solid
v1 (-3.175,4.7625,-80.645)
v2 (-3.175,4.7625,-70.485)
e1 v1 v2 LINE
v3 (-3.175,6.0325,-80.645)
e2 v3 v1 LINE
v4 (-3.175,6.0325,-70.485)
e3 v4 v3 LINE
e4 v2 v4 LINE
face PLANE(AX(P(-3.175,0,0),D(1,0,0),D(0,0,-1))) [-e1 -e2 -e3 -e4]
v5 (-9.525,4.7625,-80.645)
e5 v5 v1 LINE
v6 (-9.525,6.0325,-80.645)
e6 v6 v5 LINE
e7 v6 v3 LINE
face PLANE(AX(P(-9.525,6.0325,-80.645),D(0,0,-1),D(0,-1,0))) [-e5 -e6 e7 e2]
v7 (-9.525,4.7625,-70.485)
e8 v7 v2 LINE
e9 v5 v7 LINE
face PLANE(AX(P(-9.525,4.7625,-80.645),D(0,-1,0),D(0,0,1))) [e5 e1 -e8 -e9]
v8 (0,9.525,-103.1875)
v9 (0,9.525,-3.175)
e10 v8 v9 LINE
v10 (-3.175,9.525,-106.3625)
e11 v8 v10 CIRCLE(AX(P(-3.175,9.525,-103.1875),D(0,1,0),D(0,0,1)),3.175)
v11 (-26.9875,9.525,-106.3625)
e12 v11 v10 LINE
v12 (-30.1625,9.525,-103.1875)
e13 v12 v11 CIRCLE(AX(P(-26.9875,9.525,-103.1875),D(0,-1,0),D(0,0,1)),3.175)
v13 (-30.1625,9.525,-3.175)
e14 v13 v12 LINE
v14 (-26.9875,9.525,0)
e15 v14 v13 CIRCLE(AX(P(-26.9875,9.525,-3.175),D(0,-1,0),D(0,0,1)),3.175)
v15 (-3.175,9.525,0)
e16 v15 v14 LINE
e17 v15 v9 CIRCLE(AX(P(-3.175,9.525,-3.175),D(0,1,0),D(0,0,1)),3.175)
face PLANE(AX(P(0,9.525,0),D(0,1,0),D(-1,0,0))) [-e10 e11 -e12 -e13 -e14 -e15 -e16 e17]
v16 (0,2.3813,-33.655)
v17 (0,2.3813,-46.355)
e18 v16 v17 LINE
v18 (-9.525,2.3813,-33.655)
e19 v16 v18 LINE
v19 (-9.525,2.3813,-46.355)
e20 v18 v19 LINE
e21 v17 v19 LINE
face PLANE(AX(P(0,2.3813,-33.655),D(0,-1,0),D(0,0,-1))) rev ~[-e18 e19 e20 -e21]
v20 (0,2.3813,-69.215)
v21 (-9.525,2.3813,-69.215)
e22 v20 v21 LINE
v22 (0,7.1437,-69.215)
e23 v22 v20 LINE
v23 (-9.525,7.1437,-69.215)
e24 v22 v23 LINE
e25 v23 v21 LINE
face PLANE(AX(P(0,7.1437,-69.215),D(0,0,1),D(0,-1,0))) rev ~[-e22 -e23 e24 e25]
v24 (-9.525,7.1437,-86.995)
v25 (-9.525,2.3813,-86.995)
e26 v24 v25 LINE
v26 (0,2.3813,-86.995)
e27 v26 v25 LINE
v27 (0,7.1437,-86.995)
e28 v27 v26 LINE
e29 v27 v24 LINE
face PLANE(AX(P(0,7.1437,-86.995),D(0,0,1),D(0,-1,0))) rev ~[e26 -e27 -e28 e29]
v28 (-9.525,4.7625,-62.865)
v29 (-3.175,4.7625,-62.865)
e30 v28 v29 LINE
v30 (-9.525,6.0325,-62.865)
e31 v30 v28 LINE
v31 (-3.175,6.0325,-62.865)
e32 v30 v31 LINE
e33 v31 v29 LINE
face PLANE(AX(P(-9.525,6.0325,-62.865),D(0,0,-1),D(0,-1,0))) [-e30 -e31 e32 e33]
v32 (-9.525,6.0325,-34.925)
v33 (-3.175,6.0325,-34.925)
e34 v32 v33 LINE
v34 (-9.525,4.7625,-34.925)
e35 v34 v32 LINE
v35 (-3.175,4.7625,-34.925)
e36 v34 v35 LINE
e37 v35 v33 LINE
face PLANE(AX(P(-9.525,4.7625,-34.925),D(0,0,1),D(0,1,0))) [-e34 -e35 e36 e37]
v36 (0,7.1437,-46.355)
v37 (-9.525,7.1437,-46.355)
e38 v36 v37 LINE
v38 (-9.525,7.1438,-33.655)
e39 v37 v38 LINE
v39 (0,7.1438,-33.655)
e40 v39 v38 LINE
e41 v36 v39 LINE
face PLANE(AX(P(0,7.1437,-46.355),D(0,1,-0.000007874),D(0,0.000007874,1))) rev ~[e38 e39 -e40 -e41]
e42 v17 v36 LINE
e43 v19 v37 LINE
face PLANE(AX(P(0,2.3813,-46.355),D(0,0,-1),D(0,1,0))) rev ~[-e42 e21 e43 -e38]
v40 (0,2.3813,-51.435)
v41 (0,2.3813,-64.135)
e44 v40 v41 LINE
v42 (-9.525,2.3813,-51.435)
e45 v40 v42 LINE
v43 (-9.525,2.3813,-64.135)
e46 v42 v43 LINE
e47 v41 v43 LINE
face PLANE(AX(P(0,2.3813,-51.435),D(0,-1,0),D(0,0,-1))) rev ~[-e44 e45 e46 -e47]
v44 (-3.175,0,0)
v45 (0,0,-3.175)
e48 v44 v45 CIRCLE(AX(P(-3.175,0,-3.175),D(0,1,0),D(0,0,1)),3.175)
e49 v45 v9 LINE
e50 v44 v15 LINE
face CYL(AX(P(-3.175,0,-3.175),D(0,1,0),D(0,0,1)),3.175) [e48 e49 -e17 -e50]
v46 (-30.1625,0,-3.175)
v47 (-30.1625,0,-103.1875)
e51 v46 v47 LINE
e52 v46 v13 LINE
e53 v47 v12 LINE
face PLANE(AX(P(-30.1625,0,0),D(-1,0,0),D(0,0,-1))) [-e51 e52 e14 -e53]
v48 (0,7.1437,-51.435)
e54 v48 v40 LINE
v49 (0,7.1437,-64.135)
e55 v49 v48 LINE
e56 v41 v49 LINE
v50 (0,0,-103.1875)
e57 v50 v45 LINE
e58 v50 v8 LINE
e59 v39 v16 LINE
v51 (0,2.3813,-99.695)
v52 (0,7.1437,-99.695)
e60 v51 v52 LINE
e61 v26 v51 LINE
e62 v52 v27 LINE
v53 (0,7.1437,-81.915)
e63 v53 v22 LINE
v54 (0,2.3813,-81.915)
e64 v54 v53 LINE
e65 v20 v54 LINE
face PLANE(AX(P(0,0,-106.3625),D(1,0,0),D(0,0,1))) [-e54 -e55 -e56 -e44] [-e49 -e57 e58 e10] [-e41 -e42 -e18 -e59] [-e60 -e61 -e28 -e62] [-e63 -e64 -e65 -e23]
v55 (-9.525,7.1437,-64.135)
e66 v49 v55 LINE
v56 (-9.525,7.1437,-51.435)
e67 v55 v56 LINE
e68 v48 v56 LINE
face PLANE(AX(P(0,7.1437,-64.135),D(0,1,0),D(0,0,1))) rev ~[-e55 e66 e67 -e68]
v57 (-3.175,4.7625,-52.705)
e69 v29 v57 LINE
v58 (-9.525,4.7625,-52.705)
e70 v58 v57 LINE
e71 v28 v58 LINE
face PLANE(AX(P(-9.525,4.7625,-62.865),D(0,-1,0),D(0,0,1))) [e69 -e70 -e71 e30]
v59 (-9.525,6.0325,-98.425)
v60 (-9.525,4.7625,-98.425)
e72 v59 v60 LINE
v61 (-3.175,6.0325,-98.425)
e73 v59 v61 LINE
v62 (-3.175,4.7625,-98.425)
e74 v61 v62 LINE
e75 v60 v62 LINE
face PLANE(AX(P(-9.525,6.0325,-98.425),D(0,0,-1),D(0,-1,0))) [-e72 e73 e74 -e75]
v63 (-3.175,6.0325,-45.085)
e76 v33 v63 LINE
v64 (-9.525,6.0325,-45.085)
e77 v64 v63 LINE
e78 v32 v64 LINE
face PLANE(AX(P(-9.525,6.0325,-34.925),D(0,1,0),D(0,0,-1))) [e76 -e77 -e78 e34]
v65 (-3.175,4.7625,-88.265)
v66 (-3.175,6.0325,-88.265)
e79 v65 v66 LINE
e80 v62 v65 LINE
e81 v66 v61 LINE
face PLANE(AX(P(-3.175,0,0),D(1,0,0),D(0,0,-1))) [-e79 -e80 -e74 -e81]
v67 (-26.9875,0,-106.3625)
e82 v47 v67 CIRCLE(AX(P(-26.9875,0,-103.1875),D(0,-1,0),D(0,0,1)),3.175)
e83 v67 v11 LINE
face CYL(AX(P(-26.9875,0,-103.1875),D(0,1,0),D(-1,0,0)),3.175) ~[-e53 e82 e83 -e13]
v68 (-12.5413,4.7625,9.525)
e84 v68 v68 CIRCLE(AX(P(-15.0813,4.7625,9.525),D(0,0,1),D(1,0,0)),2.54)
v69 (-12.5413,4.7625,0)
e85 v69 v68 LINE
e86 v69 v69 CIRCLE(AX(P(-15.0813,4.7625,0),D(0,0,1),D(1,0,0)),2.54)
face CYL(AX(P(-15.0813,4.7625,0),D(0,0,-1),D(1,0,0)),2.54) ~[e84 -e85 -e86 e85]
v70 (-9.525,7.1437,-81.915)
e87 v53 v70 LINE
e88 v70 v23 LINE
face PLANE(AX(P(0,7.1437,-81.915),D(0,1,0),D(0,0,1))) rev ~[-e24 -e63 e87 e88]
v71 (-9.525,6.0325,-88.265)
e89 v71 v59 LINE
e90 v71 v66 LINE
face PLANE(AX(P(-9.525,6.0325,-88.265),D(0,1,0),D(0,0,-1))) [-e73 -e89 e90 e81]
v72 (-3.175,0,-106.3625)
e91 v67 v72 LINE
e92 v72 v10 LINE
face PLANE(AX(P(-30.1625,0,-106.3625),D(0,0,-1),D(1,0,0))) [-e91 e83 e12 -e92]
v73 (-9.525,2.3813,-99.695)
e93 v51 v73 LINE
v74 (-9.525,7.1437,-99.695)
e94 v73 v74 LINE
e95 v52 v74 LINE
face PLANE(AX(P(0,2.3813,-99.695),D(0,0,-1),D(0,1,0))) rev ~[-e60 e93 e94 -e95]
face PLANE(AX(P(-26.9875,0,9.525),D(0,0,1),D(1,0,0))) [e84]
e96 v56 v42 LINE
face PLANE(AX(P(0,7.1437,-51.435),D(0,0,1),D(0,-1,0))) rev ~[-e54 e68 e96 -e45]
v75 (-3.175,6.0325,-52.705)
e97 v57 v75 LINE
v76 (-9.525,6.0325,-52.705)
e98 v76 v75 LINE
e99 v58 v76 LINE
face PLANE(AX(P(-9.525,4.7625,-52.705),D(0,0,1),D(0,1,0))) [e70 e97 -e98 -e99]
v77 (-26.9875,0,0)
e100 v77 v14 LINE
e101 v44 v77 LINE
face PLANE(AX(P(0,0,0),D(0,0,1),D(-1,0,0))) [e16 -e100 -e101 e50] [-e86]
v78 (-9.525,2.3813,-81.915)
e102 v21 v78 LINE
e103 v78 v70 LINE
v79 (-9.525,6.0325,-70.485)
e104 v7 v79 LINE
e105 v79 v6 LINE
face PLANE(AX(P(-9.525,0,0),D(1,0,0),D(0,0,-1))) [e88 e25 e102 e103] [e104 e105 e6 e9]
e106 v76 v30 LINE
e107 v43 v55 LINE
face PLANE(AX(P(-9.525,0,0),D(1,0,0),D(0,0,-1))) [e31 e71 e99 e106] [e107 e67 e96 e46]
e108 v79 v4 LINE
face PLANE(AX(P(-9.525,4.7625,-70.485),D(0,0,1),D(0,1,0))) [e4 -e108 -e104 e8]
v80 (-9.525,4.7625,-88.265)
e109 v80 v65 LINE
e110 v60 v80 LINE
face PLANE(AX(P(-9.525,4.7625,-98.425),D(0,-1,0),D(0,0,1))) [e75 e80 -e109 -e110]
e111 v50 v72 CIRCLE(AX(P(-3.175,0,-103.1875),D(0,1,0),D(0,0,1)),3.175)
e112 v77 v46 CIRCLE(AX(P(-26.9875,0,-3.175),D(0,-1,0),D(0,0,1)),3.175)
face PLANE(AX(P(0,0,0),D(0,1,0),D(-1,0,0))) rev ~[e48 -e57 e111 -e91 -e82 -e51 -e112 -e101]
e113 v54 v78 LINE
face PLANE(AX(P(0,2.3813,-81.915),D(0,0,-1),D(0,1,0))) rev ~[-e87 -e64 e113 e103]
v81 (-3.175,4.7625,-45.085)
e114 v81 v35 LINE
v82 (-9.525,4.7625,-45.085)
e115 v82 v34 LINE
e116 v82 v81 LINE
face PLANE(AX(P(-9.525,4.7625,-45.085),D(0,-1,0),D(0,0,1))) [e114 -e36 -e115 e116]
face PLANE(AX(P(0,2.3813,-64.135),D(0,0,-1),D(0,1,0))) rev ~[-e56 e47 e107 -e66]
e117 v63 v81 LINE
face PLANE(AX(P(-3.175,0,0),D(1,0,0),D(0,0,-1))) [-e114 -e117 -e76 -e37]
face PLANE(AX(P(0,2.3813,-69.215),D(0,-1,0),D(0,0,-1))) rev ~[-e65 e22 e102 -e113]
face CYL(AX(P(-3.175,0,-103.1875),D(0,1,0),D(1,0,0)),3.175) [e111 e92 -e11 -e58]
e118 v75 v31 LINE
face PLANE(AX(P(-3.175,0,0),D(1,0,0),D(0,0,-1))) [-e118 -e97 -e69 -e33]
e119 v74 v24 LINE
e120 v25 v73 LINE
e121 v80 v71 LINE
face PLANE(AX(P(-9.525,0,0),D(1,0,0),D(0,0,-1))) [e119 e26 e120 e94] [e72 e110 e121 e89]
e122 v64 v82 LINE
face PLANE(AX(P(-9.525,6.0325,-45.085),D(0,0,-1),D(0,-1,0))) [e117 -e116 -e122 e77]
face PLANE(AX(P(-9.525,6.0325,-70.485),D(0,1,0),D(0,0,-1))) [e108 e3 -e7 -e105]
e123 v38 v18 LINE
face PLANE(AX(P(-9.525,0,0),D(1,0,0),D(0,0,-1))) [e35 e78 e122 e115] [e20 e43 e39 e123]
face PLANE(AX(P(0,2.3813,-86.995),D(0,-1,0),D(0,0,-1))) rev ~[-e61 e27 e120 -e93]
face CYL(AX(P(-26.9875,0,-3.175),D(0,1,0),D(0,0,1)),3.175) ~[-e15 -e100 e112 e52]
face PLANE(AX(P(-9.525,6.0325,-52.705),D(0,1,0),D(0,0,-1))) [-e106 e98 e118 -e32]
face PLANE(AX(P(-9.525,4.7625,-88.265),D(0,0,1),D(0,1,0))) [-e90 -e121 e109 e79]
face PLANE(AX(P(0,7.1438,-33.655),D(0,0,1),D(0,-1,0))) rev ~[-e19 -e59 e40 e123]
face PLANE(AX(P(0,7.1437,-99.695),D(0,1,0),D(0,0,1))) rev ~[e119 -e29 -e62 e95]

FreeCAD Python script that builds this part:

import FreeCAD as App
import Part
import Sketcher

V = App.Vector
Q = App.Units.Quantity


def edges_at(feature, points):
    """Names of the edges that pass closest to the given points."""
    edges = feature.Shape.Edges
    near = lambda p: min(range(len(edges)), key=lambda i: edges[i].distToShape(Part.Vertex(*p))[0])
    return sorted({f"Edge{near(p) + 1}" for p in points})

doc = App.newDocument("Part")
params = doc.addObject("Spreadsheet::Sheet", "Params")
for row, (alias, value) in enumerate([
    ("sketch1_width", "1.1875 in"),
    ("sketch1_height", "4.1875 in"),
    ("pad1_length", "0.375 in"),
    ("sketch2_height", "0.5 in"),
    ("sketch2_width", "0.1875 in"),
    ("pocket1_length", "0.375 in"),
    ("fillet_radius", "0.125 in"),
    ("sketch3_diameter", "0.2 in"),
    ("pad2_length", "0.375 in"),
    ("sketch4_width", "0.05 in"),
    ("sketch4_height", "0.4 in"),
    ("pad3_length", "0.25 in"),
], start=1):
    params.set(f"A{row}", alias)
    params.set(f"B{row}", "=" + value)
    params.setAlias(f"B{row}", alias)

body = doc.addObject("PartDesign::Body", "Body")

sketch1 = body.newObject("Sketcher::SketchObject", "Sketch")
sketch1.AttachmentSupport = (doc.getObject("XZ_Plane"), [""])
sketch1.MapMode = "FlatFace"
sketch1.addGeometry(Part.LineSegment(V(-30, 0, 0), V(0, 0, 0)), False)
sketch1.addGeometry(Part.LineSegment(V(0, 0, 0), V(0, -106, 0)), False)
sketch1.addGeometry(Part.LineSegment(V(0, -106, 0), V(-30, -106, 0)), False)
sketch1.addGeometry(Part.LineSegment(V(-30, -106, 0), V(-30, 0, 0)), False)
sketch1.addConstraint(Sketcher.Constraint("Coincident", 0, 2, 1, 1))
sketch1.addConstraint(Sketcher.Constraint("Coincident", 1, 2, 2, 1))
sketch1.addConstraint(Sketcher.Constraint("Coincident", 2, 2, 3, 1))
sketch1.addConstraint(Sketcher.Constraint("Coincident", 3, 2, 0, 1))
sketch1.addConstraint(Sketcher.Constraint("Horizontal", 0))
sketch1.addConstraint(Sketcher.Constraint("Vertical", 1))
sketch1.addConstraint(Sketcher.Constraint("Horizontal", 2))
sketch1.addConstraint(Sketcher.Constraint("Vertical", 3))
sketch1.addConstraint(Sketcher.Constraint("Coincident", 0, 2, -1, 1))
sketch1.addConstraint(Sketcher.Constraint("DistanceX", 0, 1, 0, 2, Q("1.1875 in")))
sketch1.addConstraint(Sketcher.Constraint("DistanceY", 1, 2, 1, 1, Q("4.1875 in")))
sketch1.setExpression("Constraints[9]", "Params.sketch1_width")
sketch1.setExpression("Constraints[10]", "Params.sketch1_height")
pad1 = body.newObject("PartDesign::Pad", "Pad")
pad1.Profile = sketch1
pad1.setExpression("Length", "Params.pad1_length")
pad1.Reversed = True

sketch2 = body.newObject("Sketcher::SketchObject", "Sketch001")
sketch2.AttachmentSupport = (doc.getObject("YZ_Plane"), [""])
sketch2.MapMode = "FlatFace"
sketch2.addGeometry(Part.LineSegment(V(7.1, -33.7, 0), V(2.4, -33.7, 0)), False)
sketch2.addGeometry(Part.LineSegment(V(2.4, -33.7, 0), V(2.4, -46.4, 0)), False)
sketch2.addGeometry(Part.LineSegment(V(2.4, -46.4, 0), V(7.1, -46.4, 0)), False)
sketch2.addGeometry(Part.LineSegment(V(7.1, -46.4, 0), V(7.1, -33.7, 0)), False)
sketch2.addGeometry(Part.LineSegment(V(7.1, -51.4, 0), V(2.4, -51.4, 0)), False)
sketch2.addGeometry(Part.LineSegment(V(2.4, -51.4, 0), V(2.4, -64.1, 0)), False)
sketch2.addGeometry(Part.LineSegment(V(2.4, -64.1, 0), V(7.1, -64.1, 0)), False)
sketch2.addGeometry(Part.LineSegment(V(7.1, -64.1, 0), V(7.1, -51.4, 0)), False)
sketch2.addGeometry(Part.LineSegment(V(7.1, -87, 0), V(2.4, -87, 0)), False)
sketch2.addGeometry(Part.LineSegment(V(2.4, -87, 0), V(2.4, -99.7, 0)), False)
sketch2.addGeometry(Part.LineSegment(V(2.4, -99.7, 0), V(7.1, -99.7, 0)), False)
sketch2.addGeometry(Part.LineSegment(V(7.1, -99.7, 0), V(7.1, -87, 0)), False)
sketch2.addGeometry(Part.LineSegment(V(7.1, -69.2, 0), V(2.4, -69.2, 0)), False)
sketch2.addGeometry(Part.LineSegment(V(2.4, -69.2, 0), V(2.4, -81.9, 0)), False)
sketch2.addGeometry(Part.LineSegment(V(2.4, -81.9, 0), V(7.1, -81.9, 0)), False)
sketch2.addGeometry(Part.LineSegment(V(7.1, -81.9, 0), V(7.1, -69.2, 0)), False)
sketch2.addConstraint(Sketcher.Constraint("Coincident", 0, 2, 1, 1))
sketch2.addConstraint(Sketcher.Constraint("Coincident", 1, 2, 2, 1))
sketch2.addConstraint(Sketcher.Constraint("Coincident", 2, 2, 3, 1))
sketch2.addConstraint(Sketcher.Constraint("Coincident", 3, 2, 0, 1))
sketch2.addConstraint(Sketcher.Constraint("Coincident", 4, 2, 5, 1))
sketch2.addConstraint(Sketcher.Constraint("Coincident", 5, 2, 6, 1))
sketch2.addConstraint(Sketcher.Constraint("Coincident", 6, 2, 7, 1))
sketch2.addConstraint(Sketcher.Constraint("Coincident", 7, 2, 4, 1))
sketch2.addConstraint(Sketcher.Constraint("Coincident", 8, 2, 9, 1))
sketch2.addConstraint(Sketcher.Constraint("Coincident", 9, 2, 10, 1))
sketch2.addConstraint(Sketcher.Constraint("Coincident", 10, 2, 11, 1))
sketch2.addConstraint(Sketcher.Constraint("Coincident", 11, 2, 8, 1))
sketch2.addConstraint(Sketcher.Constraint("Coincident", 12, 2, 13, 1))
sketch2.addConstraint(Sketcher.Constraint("Coincident", 13, 2, 14, 1))
sketch2.addConstraint(Sketcher.Constraint("Coincident", 14, 2, 15, 1))
sketch2.addConstraint(Sketcher.Constraint("Coincident", 15, 2, 12, 1))
sketch2.addConstraint(Sketcher.Constraint("Horizontal", 0))
sketch2.addConstraint(Sketcher.Constraint("Vertical", 1))
sketch2.addConstraint(Sketcher.Constraint("Horizontal", 2))
sketch2.addConstraint(Sketcher.Constraint("Vertical", 3))
sketch2.addConstraint(Sketcher.Constraint("Horizontal", 4))
sketch2.addConstraint(Sketcher.Constraint("Vertical", 5))
sketch2.addConstraint(Sketcher.Constraint("Horizontal", 6))
sketch2.addConstraint(Sketcher.Constraint("Vertical", 7))
sketch2.addConstraint(Sketcher.Constraint("Horizontal", 8))
sketch2.addConstraint(Sketcher.Constraint("Vertical", 9))
sketch2.addConstraint(Sketcher.Constraint("Horizontal", 10))
sketch2.addConstraint(Sketcher.Constraint("Vertical", 11))
sketch2.addConstraint(Sketcher.Constraint("Horizontal", 12))
sketch2.addConstraint(Sketcher.Constraint("Vertical", 13))
sketch2.addConstraint(Sketcher.Constraint("Horizontal", 14))
sketch2.addConstraint(Sketcher.Constraint("Vertical", 15))
sketch2.addConstraint(Sketcher.Constraint("Vertical", 1, 2, 4, 2))
sketch2.addConstraint(Sketcher.Constraint("Vertical", 3, 2, 6, 2))
sketch2.addConstraint(Sketcher.Constraint("Vertical", 5, 2, 8, 2))
sketch2.addConstraint(Sketcher.Constraint("Vertical", 7, 2, 10, 2))
sketch2.addConstraint(Sketcher.Constraint("Vertical", 9, 2, 12, 2))
sketch2.addConstraint(Sketcher.Constraint("Vertical", 11, 2, 14, 2))
sketch2.addConstraint(Sketcher.Constraint("Equal", 3, 5))
sketch2.addConstraint(Sketcher.Constraint("Equal", 7, 9))
sketch2.addConstraint(Sketcher.Constraint("Equal", 11, 13))
sketch2.addConstraint(Sketcher.Constraint("DistanceY", 1, 2, 1, 1, Q("0.5 in")))
sketch2.addConstraint(Sketcher.Constraint("DistanceY", 4, 2, 1, 2, Q("0.2 in")))
sketch2.addConstraint(Sketcher.Constraint("DistanceY", 12, 2, 5, 2, Q("0.2 in")))
sketch2.addConstraint(Sketcher.Constraint("DistanceY", 8, 2, 13, 2, Q("0.2 in")))
sketch2.addConstraint(Sketcher.Constraint("DistanceX", 0, 2, 0, 1, Q("0.1875 in")))
sketch2.addConstraint(Sketcher.Constraint("DistanceX", -1, 1, 0, 2, Q("0.093752 in")))
sketch2.addConstraint(Sketcher.Constraint("DistanceY", 0, 2, -1, 1, Q("1.325 in")))
sketch2.setExpression("Constraints[41]", "Params.sketch2_height")
sketch2.setExpression("Constraints[45]", "Params.sketch2_width")
pocket1 = body.newObject("PartDesign::Pocket", "Pocket")
pocket1.Profile = sketch2
pocket1.setExpression("Length", "Params.pocket1_length")
doc.recompute()

fillet = body.newObject("PartDesign::Fillet", "Fillet")
fillet.Base = (pocket1, edges_at(pocket1, [
    (0, 4.763, 0),
    (-30.163, 4.763, 0),
    (-30.163, 4.763, -106.362),
    (0, 4.763, -106.362),
]))
fillet.setExpression("Radius", "Params.fillet_radius")

sketch3 = body.newObject("Sketcher::SketchObject", "Sketch002")
sketch3.AttachmentSupport = (doc.getObject("XY_Plane"), [""])
sketch3.MapMode = "FlatFace"
sketch3.addGeometry(Part.Circle(V(-15.1, 4.8, 0), V(0, 0, 1), 2.5), False)
sketch3.addConstraint(Sketcher.Constraint("Diameter", 0, Q("0.2 in")))
sketch3.addConstraint(Sketcher.Constraint("DistanceX", 0, 3, -1, 1, Q("0.593752 in")))
sketch3.addConstraint(Sketcher.Constraint("DistanceY", -1, 1, 0, 3, Q("0.1875 in")))
sketch3.setExpression("Constraints[0]", "Params.sketch3_diameter")
pad2 = body.newObject("PartDesign::Pad", "Pad001")
pad2.Profile = sketch3
pad2.setExpression("Length", "Params.pad2_length")

sketch4 = body.newObject("Sketcher::SketchObject", "Sketch003")
sketch4.AttachmentSupport = (doc.getObject("YZ_Plane"), [""])
sketch4.MapMode = "FlatFace"
sketch4.AttachmentOffset = App.Placement(V(0, 0, -0.375 * 25.4), App.Rotation())
sketch4.addGeometry(Part.LineSegment(V(6, -45.1, 0), V(6, -34.9, 0)), False)
sketch4.addGeometry(Part.LineSegment(V(6, -34.9, 0), V(4.8, -34.9, 0)), False)
sketch4.addGeometry(Part.LineSegment(V(4.8, -34.9, 0), V(4.8, -45.1, 0)), False)
sketch4.addGeometry(Part.LineSegment(V(4.8, -45.1, 0), V(6, -45.1, 0)), False)
sketch4.addGeometry(Part.LineSegment(V(6, -62.9, 0), V(6, -52.7, 0)), False)
sketch4.addGeometry(Part.LineSegment(V(6, -52.7, 0), V(4.8, -52.7, 0)), False)
sketch4.addGeometry(Part.LineSegment(V(4.8, -52.7, 0), V(4.8, -62.9, 0)), False)
sketch4.addGeometry(Part.LineSegment(V(4.8, -62.9, 0), V(6, -62.9, 0)), False)
sketch4.addGeometry(Part.LineSegment(V(6, -80.6, 0), V(6, -70.5, 0)), False)
sketch4.addGeometry(Part.LineSegment(V(6, -70.5, 0), V(4.8, -70.5, 0)), False)
sketch4.addGeometry(Part.LineSegment(V(4.8, -70.5, 0), V(4.8, -80.6, 0)), False)
sketch4.addGeometry(Part.LineSegment(V(4.8, -80.6, 0), V(6, -80.6, 0)), False)
sketch4.addGeometry(Part.LineSegment(V(6, -98.4, 0), V(6, -88.3, 0)), False)
sketch4.addGeometry(Part.LineSegment(V(6, -88.3, 0), V(4.8, -88.3, 0)), False)
sketch4.addGeometry(Part.LineSegment(V(4.8, -88.3, 0), V(4.8, -98.4, 0)), False)
sketch4.addGeometry(Part.LineSegment(V(4.8, -98.4, 0), V(6, -98.4, 0)), False)
sketch4.addConstraint(Sketcher.Constraint("Coincident", 0, 2, 1, 1))
sketch4.addConstraint(Sketcher.Constraint("Coincident", 1, 2, 2, 1))
sketch4.addConstraint(Sketcher.Constraint("Coincident", 2, 2, 3, 1))
sketch4.addConstraint(Sketcher.Constraint("Coincident", 3, 2, 0, 1))
sketch4.addConstraint(Sketcher.Constraint("Coincident", 4, 2, 5, 1))
sketch4.addConstraint(Sketcher.Constraint("Coincident", 5, 2, 6, 1))
sketch4.addConstraint(Sketcher.Constraint("Coincident", 6, 2, 7, 1))
sketch4.addConstraint(Sketcher.Constraint("Coincident", 7, 2, 4, 1))
sketch4.addConstraint(Sketcher.Constraint("Coincident", 8, 2, 9, 1))
sketch4.addConstraint(Sketcher.Constraint("Coincident", 9, 2, 10, 1))
sketch4.addConstraint(Sketcher.Constraint("Coincident", 10, 2, 11, 1))
sketch4.addConstraint(Sketcher.Constraint("Coincident", 11, 2, 8, 1))
sketch4.addConstraint(Sketcher.Constraint("Coincident", 12, 2, 13, 1))
sketch4.addConstraint(Sketcher.Constraint("Coincident", 13, 2, 14, 1))
sketch4.addConstraint(Sketcher.Constraint("Coincident", 14, 2, 15, 1))
sketch4.addConstraint(Sketcher.Constraint("Coincident", 15, 2, 12, 1))
sketch4.addConstraint(Sketcher.Constraint("Vertical", 0))
sketch4.addConstraint(Sketcher.Constraint("Horizontal", 1))
sketch4.addConstraint(Sketcher.Constraint("Vertical", 2))
sketch4.addConstraint(Sketcher.Constraint("Horizontal", 3))
sketch4.addConstraint(Sketcher.Constraint("Vertical", 4))
sketch4.addConstraint(Sketcher.Constraint("Horizontal", 5))
sketch4.addConstraint(Sketcher.Constraint("Vertical", 6))
sketch4.addConstraint(Sketcher.Constraint("Horizontal", 7))
sketch4.addConstraint(Sketcher.Constraint("Vertical", 8))
sketch4.addConstraint(Sketcher.Constraint("Horizontal", 9))
sketch4.addConstraint(Sketcher.Constraint("Vertical", 10))
sketch4.addConstraint(Sketcher.Constraint("Horizontal", 11))
sketch4.addConstraint(Sketcher.Constraint("Vertical", 12))
sketch4.addConstraint(Sketcher.Constraint("Horizontal", 13))
sketch4.addConstraint(Sketcher.Constraint("Vertical", 14))
sketch4.addConstraint(Sketcher.Constraint("Horizontal", 15))
sketch4.addConstraint(Sketcher.Constraint("Vertical", 3, 2, 4, 2))
sketch4.addConstraint(Sketcher.Constraint("Vertical", 2, 2, 5, 2))
sketch4.addConstraint(Sketcher.Constraint("Vertical", 7, 2, 8, 2))
sketch4.addConstraint(Sketcher.Constraint("Vertical", 6, 2, 9, 2))
sketch4.addConstraint(Sketcher.Constraint("Vertical", 11, 2, 12, 2))
sketch4.addConstraint(Sketcher.Constraint("Vertical", 10, 2, 13, 2))
sketch4.addConstraint(Sketcher.Constraint("Equal", 2, 4))
sketch4.addConstraint(Sketcher.Constraint("Equal", 6, 8))
sketch4.addConstraint(Sketcher.Constraint("Equal", 10, 12))
sketch4.addConstraint(Sketcher.Constraint("DistanceX", 1, 2, 1, 1, Q("0.05 in")))
sketch4.addConstraint(Sketcher.Constraint("DistanceY", 0, 1, 0, 2, Q("0.4 in")))
sketch4.addConstraint(Sketcher.Constraint("DistanceY", 8, 2, 3, 2, Q("1 in")))
sketch4.addConstraint(Sketcher.Constraint("DistanceY", 12, 2, 7, 2, Q("1 in")))
sketch4.addConstraint(Sketcher.Constraint("DistanceY", 4, 2, 3, 2, Q("0.3 in")))
sketch4.addConstraint(Sketcher.Constraint("DistanceY", 0, 2, -1, 1, Q("1.375 in")))
sketch4.addConstraint(Sketcher.Constraint("DistanceX", -1, 1, 1, 2, Q("0.1875 in")))
sketch4.setExpression("Constraints[41]", "Params.sketch4_width")
sketch4.setExpression("Constraints[42]", "Params.sketch4_height")
pad3 = body.newObject("PartDesign::Pad", "Pad002")
pad3.Profile = sketch4
pad3.setExpression("Length", "Params.pad3_length")

doc.recompute()
